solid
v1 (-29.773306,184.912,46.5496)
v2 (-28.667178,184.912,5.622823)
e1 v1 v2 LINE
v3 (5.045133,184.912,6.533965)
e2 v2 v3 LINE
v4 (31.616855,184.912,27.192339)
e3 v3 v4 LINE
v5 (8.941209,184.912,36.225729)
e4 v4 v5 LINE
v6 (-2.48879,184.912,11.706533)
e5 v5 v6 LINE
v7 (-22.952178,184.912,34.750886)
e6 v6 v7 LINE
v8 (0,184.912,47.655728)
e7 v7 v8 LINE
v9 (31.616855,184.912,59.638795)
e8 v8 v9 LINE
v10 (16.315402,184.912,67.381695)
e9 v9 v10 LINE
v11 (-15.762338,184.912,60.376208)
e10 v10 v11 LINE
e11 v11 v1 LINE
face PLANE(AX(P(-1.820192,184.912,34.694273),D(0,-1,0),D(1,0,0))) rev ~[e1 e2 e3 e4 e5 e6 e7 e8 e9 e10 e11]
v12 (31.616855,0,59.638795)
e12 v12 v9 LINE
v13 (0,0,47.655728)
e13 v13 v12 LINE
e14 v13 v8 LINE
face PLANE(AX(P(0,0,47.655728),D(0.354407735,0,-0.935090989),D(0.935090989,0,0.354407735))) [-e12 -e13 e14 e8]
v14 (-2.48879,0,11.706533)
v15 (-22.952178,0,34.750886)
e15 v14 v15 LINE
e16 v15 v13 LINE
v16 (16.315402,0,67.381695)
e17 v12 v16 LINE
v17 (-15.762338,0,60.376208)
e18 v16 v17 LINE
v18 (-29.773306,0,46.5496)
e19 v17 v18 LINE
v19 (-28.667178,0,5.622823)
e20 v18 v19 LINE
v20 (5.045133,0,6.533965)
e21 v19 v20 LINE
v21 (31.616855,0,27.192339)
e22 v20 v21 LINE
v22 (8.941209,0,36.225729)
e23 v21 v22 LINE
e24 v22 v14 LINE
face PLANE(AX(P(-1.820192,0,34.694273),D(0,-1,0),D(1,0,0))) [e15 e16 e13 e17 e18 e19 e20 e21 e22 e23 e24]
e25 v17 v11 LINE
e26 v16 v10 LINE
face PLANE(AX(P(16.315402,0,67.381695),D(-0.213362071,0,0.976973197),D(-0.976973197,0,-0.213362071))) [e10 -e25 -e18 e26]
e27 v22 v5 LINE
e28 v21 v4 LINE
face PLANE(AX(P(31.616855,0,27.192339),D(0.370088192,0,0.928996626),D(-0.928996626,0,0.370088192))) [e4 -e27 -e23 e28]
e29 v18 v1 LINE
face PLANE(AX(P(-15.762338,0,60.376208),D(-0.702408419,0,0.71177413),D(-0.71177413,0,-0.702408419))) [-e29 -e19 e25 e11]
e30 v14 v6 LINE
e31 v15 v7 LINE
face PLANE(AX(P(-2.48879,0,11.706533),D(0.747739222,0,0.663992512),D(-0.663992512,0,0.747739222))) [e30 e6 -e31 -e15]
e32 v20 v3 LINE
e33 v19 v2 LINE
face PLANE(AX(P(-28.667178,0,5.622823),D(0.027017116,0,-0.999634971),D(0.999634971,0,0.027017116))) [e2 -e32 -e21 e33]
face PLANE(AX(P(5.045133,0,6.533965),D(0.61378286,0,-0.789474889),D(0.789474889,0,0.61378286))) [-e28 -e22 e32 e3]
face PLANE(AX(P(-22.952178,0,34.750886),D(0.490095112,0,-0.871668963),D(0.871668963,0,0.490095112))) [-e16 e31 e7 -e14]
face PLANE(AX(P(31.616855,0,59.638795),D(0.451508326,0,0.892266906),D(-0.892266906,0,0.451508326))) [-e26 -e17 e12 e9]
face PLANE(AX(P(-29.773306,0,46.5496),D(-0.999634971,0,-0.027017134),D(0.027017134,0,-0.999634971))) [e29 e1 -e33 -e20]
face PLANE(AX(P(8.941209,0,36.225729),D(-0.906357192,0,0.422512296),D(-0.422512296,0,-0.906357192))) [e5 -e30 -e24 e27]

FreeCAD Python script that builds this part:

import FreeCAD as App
import Part
import Sketcher
Q = App.Units.Quantity

doc = App.newDocument("Part")
body = doc.addObject("PartDesign::Body", "Body")

# Sketch on XZ plane
sketch1 = body.newObject("Sketcher::SketchObject", "Sketch")
sketch1.AttachmentSupport = (doc.getObject("XZ_Plane"), [""])
sketch1.MapMode = "FlatFace"
sketch1.addGeometry([
    Part.LineSegment(App.Vector(-15.762338, 60.376208, 0), App.Vector(-29.773306, 46.5496, 0)),  # 0
    Part.LineSegment(App.Vector(-29.773306, 46.5496, 0), App.Vector(-28.667178, 5.622823, 0)),  # 1
    Part.LineSegment(App.Vector(-28.667178, 5.622823, 0), App.Vector(5.045133, 6.533965, 0)),  # 2
    Part.LineSegment(App.Vector(5.045133, 6.533965, 0), App.Vector(31.616855, 27.192339, 0)),  # 3
    Part.LineSegment(App.Vector(31.616855, 27.192339, 0), App.Vector(8.941209, 36.225729, 0)),  # 4
    Part.LineSegment(App.Vector(8.941209, 36.225729, 0), App.Vector(-2.48879, 11.706533, 0)),  # 5
    Part.LineSegment(App.Vector(-2.48879, 11.706533, 0), App.Vector(-22.952178, 34.750886, 0)),  # 6
    Part.LineSegment(App.Vector(-22.952178, 34.750886, 0), App.Vector(0, 47.655728, 0)),  # 7
    Part.LineSegment(App.Vector(0, 47.655728, 0), App.Vector(31.616855, 59.638795, 0)),  # 8
    Part.LineSegment(App.Vector(31.616855, 59.638795, 0), App.Vector(16.315402, 67.381695, 0)),  # 9
    Part.LineSegment(App.Vector(16.315402, 67.381695, 0), App.Vector(-15.762338, 60.376208, 0)),  # 10
], False)
sketch1.addConstraint([
    Sketcher.Constraint("Coincident", 0, 2, 1, 1),
    Sketcher.Constraint("Coincident", 1, 2, 2, 1),
    Sketcher.Constraint("Coincident", 2, 2, 3, 1),
    Sketcher.Constraint("Coincident", 3, 2, 4, 1),
    Sketcher.Constraint("Coincident", 4, 2, 5, 1),
    Sketcher.Constraint("Coincident", 5, 2, 6, 1),
    Sketcher.Constraint("Coincident", 6, 2, 7, 1),
    Sketcher.Constraint("Coincident", 7, 2, 8, 1),
    Sketcher.Constraint("Coincident", 8, 2, 9, 1),
    Sketcher.Constraint("Coincident", 9, 2, 10, 1),
    Sketcher.Constraint("Coincident", 10, 2, 0, 1),
    Sketcher.Constraint("PointOnObject", 7, 2, -2),
    Sketcher.Constraint("Perpendicular", 1, 2),
    Sketcher.Constraint("Vertical", 3, 2, 8, 2),
    Sketcher.Constraint("DistanceX", 5, 2, 4, 2, Q("0.45 in")),
    Sketcher.Constraint("DistanceY", 4, 2, 7, 2, Q("0.45 in")),
    Sketcher.Constraint("DistanceX", 1, 2, 6, 2, Q("0.225 in")),
    Sketcher.Constraint("Distance", 7, Q("26.331301 mm")),
    Sketcher.Constraint("DistanceY", -1, 1, 0, 2, Q("46.5496 mm")),
    Sketcher.Constraint("DistanceX", -1, 1, 9, 2, Q("16.315402 mm")),
    Sketcher.Constraint("DistanceY", 8, 2, 9, 2, Q("7.7429 mm")),
    Sketcher.Constraint("Distance", 0, Q("19.68457 mm")),
    Sketcher.Constraint("Distance", 1, Q("40.941722 mm")),
    Sketcher.Constraint("Distance", 2, Q("33.724621 mm")),
    Sketcher.Constraint("Distance", 4, Q("24.40875 mm")),
    Sketcher.Constraint("DistanceX", 1, 2, -1, 1, Q("28.667178 mm")),
    Sketcher.Constraint("DistanceY", -1, 1, 3, 2, Q("27.192339 mm")),
    Sketcher.Constraint("DistanceX", -1, 1, 4, 2, Q("8.941209 mm")),
    Sketcher.Constraint("DistanceY", -1, 1, 4, 2, Q("36.225729 mm")),
    Sketcher.Constraint("DistanceX", 0, 2, 1, 2, Q("1.106128 mm")),
    Sketcher.Constraint("DistanceY", 1, 2, 5, 2, Q("6.08371 mm")),
    Sketcher.Constraint("DistanceY", 2, 2, 8, 2, Q("53.10483 mm")),
    Sketcher.Constraint("DistanceX", 0, 2, 10, 2, Q("14.010968 mm")),
])
pad1 = body.newObject("PartDesign::Pad", "Pad")
pad1.Profile = sketch1
pad1.Length = Q("7.28 in")
pad1.Reversed = True

doc.recompute()
